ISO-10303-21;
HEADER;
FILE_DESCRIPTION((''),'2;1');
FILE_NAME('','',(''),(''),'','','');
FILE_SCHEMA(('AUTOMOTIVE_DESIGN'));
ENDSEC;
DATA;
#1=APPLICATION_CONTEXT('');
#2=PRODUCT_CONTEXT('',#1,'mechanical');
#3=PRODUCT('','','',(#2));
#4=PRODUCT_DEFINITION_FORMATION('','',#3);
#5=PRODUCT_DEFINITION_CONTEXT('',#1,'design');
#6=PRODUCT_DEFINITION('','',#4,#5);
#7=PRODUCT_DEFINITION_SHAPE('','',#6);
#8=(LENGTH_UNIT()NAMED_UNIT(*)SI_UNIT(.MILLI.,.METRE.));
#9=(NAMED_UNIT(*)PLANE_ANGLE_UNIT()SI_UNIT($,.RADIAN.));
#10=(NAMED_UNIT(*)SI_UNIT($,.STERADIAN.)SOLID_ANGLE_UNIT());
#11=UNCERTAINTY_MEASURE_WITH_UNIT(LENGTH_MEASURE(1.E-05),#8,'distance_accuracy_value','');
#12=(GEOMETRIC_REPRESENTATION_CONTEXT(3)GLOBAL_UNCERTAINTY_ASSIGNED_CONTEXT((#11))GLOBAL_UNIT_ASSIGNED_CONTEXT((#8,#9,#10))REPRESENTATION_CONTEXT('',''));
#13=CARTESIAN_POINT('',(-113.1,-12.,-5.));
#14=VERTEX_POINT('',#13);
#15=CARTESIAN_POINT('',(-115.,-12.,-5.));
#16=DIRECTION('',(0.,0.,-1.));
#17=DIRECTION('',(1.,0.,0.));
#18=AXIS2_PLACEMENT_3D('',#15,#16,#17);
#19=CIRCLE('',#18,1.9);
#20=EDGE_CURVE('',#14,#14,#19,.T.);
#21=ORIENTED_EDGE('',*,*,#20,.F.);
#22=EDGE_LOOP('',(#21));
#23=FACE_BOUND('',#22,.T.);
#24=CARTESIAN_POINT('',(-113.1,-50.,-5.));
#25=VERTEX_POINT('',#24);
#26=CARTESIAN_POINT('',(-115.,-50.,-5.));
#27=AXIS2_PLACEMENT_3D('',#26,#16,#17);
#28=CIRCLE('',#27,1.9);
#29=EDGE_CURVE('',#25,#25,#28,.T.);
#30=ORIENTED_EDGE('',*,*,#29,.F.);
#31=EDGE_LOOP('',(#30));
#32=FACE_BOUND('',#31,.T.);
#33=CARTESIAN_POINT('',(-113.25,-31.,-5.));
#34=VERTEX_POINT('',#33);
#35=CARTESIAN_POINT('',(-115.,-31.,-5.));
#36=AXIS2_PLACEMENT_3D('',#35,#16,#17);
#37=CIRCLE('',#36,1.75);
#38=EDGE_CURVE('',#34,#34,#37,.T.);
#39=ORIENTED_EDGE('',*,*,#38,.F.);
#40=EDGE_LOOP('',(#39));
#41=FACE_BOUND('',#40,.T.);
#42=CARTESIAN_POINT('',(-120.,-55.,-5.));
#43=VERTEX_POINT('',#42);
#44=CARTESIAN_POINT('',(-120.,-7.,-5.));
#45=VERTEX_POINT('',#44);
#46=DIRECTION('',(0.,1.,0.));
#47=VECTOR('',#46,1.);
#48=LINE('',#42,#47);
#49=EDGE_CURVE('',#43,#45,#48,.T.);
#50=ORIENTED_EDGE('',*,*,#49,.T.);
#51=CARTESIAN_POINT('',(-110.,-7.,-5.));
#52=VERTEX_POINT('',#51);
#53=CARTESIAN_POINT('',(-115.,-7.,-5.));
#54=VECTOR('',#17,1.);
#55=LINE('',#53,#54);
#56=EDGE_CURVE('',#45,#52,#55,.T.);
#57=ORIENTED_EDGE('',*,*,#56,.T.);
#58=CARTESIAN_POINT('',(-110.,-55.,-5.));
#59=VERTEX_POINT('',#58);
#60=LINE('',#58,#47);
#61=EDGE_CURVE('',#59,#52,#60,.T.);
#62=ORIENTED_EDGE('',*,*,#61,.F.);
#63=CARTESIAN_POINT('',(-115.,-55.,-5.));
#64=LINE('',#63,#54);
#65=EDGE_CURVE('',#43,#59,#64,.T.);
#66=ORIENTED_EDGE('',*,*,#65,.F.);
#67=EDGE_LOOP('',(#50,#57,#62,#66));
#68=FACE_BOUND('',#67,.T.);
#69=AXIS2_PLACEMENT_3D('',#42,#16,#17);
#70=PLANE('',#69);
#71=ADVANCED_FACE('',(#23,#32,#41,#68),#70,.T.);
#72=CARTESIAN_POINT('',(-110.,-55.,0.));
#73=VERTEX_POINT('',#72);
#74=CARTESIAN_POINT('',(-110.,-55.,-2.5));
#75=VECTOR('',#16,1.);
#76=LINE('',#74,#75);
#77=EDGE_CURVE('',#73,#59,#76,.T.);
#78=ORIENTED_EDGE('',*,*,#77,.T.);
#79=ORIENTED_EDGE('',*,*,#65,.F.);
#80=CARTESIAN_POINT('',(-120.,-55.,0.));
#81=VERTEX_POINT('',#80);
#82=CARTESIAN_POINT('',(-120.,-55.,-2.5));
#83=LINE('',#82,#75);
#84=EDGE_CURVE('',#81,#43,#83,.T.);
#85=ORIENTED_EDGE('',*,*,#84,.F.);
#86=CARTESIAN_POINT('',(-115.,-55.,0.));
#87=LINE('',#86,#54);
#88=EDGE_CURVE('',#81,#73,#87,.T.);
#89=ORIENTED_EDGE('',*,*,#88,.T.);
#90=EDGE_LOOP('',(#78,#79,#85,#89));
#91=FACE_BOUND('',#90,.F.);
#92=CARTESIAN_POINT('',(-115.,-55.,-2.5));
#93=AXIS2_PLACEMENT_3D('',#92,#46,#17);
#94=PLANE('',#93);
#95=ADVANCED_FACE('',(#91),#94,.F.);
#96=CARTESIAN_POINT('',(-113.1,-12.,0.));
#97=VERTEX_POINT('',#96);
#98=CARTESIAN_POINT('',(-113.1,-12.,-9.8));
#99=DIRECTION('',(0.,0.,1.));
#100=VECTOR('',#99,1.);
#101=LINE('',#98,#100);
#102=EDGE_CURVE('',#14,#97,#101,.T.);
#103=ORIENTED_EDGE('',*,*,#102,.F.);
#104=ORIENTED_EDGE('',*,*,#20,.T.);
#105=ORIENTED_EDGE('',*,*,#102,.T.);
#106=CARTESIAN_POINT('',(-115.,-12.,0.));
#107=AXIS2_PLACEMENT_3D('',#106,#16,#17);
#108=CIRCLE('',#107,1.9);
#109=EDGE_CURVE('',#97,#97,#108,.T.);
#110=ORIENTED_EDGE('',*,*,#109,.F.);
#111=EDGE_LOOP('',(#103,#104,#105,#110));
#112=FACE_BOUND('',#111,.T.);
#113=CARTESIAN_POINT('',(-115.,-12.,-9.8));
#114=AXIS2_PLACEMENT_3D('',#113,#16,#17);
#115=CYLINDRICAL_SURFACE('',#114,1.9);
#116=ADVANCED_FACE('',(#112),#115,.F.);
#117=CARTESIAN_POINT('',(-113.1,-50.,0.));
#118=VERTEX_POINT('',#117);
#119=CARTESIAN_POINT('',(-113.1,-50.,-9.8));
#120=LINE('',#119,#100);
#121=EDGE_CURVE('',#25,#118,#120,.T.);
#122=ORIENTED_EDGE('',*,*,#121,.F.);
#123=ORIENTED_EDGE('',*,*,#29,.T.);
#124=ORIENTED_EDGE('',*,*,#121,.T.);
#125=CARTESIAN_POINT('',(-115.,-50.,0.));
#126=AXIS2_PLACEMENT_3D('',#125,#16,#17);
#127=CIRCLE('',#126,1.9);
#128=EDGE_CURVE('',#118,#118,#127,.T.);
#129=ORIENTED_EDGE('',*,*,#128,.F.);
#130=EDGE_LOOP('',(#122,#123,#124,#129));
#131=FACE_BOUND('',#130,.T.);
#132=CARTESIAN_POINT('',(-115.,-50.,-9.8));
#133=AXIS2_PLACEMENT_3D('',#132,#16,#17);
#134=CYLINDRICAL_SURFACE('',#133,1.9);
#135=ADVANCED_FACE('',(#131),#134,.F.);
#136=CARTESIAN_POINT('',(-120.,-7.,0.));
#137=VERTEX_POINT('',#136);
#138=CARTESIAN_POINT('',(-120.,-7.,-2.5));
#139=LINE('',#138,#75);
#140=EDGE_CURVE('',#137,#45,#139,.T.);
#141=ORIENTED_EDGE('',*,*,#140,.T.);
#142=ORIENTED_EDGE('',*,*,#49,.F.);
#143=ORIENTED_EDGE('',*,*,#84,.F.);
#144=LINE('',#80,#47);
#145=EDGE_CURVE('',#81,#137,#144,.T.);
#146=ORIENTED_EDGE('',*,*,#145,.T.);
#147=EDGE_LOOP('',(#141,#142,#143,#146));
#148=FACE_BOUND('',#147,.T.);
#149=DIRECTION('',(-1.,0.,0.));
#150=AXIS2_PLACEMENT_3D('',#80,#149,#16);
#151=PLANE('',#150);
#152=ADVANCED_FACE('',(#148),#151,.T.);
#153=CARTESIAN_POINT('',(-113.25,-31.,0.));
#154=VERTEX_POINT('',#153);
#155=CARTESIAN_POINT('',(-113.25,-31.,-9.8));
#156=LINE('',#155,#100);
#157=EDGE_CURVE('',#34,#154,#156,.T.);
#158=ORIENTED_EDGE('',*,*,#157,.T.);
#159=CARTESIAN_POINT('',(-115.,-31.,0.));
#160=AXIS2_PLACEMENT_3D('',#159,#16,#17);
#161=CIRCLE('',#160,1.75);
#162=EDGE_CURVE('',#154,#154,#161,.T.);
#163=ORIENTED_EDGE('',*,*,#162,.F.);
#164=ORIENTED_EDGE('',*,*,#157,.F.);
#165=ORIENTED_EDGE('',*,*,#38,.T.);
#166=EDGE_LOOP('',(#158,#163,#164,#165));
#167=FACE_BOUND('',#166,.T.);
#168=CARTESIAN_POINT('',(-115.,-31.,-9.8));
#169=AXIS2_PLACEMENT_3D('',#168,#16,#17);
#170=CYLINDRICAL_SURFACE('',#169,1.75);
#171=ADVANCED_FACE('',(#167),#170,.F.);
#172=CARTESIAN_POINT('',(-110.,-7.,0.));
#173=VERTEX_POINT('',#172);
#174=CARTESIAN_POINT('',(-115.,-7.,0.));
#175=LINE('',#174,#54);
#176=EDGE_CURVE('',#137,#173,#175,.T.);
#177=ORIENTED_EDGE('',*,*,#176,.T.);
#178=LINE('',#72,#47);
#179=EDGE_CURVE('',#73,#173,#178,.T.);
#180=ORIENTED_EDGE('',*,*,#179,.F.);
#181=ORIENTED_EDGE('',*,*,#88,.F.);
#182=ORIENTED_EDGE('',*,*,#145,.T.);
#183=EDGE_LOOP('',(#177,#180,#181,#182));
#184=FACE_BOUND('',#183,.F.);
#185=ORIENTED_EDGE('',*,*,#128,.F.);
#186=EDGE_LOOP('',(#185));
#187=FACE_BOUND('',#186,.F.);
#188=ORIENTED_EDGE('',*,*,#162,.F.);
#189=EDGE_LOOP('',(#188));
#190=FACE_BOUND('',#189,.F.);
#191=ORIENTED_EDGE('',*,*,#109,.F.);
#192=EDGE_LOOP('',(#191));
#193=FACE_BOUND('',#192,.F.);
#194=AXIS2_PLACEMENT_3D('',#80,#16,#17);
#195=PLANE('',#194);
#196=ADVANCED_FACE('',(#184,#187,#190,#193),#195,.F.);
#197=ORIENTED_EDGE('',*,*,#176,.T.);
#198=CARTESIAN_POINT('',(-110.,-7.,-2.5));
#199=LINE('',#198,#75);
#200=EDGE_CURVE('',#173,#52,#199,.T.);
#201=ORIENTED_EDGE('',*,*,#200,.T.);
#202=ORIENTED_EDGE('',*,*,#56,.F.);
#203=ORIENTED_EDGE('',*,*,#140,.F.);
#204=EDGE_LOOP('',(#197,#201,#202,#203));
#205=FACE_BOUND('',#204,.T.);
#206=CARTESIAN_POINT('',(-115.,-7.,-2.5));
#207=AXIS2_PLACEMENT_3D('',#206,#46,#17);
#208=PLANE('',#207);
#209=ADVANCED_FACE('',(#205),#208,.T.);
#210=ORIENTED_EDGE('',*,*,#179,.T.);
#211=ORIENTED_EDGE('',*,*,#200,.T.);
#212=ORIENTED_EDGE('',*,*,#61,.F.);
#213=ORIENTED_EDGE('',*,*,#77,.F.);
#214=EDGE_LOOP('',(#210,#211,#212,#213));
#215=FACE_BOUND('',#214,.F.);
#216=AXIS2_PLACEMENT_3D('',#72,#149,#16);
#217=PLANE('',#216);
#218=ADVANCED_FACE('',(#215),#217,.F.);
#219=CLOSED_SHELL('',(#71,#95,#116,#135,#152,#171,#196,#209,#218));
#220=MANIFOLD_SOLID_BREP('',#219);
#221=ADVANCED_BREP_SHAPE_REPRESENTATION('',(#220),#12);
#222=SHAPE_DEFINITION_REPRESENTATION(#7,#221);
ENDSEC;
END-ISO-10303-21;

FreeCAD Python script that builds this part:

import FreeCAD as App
import Part
import Sketcher
from FreeCAD import Vector

doc = App.newDocument("Part")
body = doc.addObject("PartDesign::Body", "Body")

# Sketch on XZ plane
sketch1 = body.newObject("Sketcher::SketchObject", "Sketch")
sketch1.AttachmentSupport = (doc.getObject("XZ_Plane"), [""])
sketch1.MapMode = "FlatFace"
sketch1.addGeometry(Part.Circle(Vector(-115, -50, 0), Vector(0, 0, 1), 1.9), False)
sketch1.addConstraint(Sketcher.Constraint("Diameter", 0, 3.8))
sketch1.addConstraint(Sketcher.Constraint("DistanceX", 0, 3, -1, 1, 115.0))
sketch1.addConstraint(Sketcher.Constraint("DistanceY", 0, 3, -1, 1, 50.0))
pad1 = body.newObject("PartDesign::Pad", "Pad")
pad1.Profile = sketch1
pad1.Length = 10
body2 = doc.addObject("PartDesign::Body", "Body001")

# Sketch on XZ plane
sketch2 = body2.newObject("Sketcher::SketchObject", "Sketch001")
sketch2.AttachmentSupport = (doc.getObject("XZ_Plane001"), [""])
sketch2.MapMode = "FlatFace"
sketch2.addGeometry(Part.Circle(Vector(-115, -12, 0), Vector(0, 0, 1), 1.9), False)
sketch2.addConstraint(Sketcher.Constraint("Diameter", 0, 3.8))
sketch2.addConstraint(Sketcher.Constraint("DistanceX", 0, 3, -1, 1, 115.0))
sketch2.addConstraint(Sketcher.Constraint("DistanceY", 0, 3, -1, 1, 12.0))
pad2 = body2.newObject("PartDesign::Pad", "Pad001")
pad2.Profile = sketch2
pad2.Length = 10
body3 = doc.addObject("PartDesign::Body", "Body002")
body3.AllowCompound = True

# Sketch on XZ plane
sketch3 = body3.newObject("Sketcher::SketchObject", "Sketch002")
sketch3.AttachmentSupport = (doc.getObject("XZ_Plane002"), [""])
sketch3.MapMode = "FlatFace"
sketch3.addGeometry(Part.Circle(Vector(-115, -31, 0), Vector(0, 0, 1), 1.8), False)
sketch3.addConstraint(Sketcher.Constraint("Diameter", 0, 3.5))
sketch3.addConstraint(Sketcher.Constraint("DistanceX", 0, 3, -1, 1, 115.0))
sketch3.addConstraint(Sketcher.Constraint("DistanceY", 0, 3, -1, 1, 31.0))
pad3 = body3.newObject("PartDesign::Pad", "Pad002")
pad3.Profile = sketch3
pad3.Length = 10
doc.recompute()

boolean = body3.newObject("PartDesign::Boolean", "Boolean")
boolean.Type = "Fuse"
boolean.addObjects([body])
doc.recompute()

boolean2 = body3.newObject("PartDesign::Boolean", "Boolean001")
boolean2.Type = "Fuse"
boolean2.addObjects([body2])
body4 = doc.addObject("PartDesign::Body", "Body003")
body4.AllowCompound = True
doc.recompute()

body3.Placement = App.Placement(Vector(0, 9.8, 0), App.Rotation(Vector(0, 0, 1), 0))
boolean3 = body4.newObject("PartDesign::Boolean", "Boolean002")
boolean3.Type = "Fuse"
boolean3.addObjects([body3])
body5 = doc.addObject("PartDesign::Body", "Body004")

# Sketch on XY plane
sketch4 = body5.newObject("Sketcher::SketchObject", "Sketch003")
sketch4.AttachmentSupport = (doc.getObject("XY_Plane004"), [""])
sketch4.MapMode = "FlatFace"
sketch4.AttachmentOffset = App.Placement(Vector(0, 0, -55), App.Rotation())
sketch4.addGeometry(Part.LineSegment(Vector(-120, 5, 0), Vector(-120, 0, 0)), False)
sketch4.addGeometry(Part.LineSegment(Vector(-120, 0, 0), Vector(-110, 0, 0)), False)
sketch4.addGeometry(Part.LineSegment(Vector(-110, 0, 0), Vector(-110, 5, 0)), False)
sketch4.addGeometry(Part.LineSegment(Vector(-110, 5, 0), Vector(-120, 5, 0)), False)
sketch4.addConstraint(Sketcher.Constraint("Coincident", 0, 2, 1, 1))
sketch4.addConstraint(Sketcher.Constraint("Coincident", 1, 2, 2, 1))
sketch4.addConstraint(Sketcher.Constraint("Coincident", 2, 2, 3, 1))
sketch4.addConstraint(Sketcher.Constraint("Coincident", 3, 2, 0, 1))
sketch4.addConstraint(Sketcher.Constraint("Vertical", 0))
sketch4.addConstraint(Sketcher.Constraint("Horizontal", 1))
sketch4.addConstraint(Sketcher.Constraint("Vertical", 2))
sketch4.addConstraint(Sketcher.Constraint("Horizontal", 3))
sketch4.addConstraint(Sketcher.Constraint("PointOnObject", 0, 2, -1))
sketch4.addConstraint(Sketcher.Constraint("DistanceX", 1, 1, 1, 2, 10.0))
sketch4.addConstraint(Sketcher.Constraint("DistanceY", 0, 2, 0, 1, 5.0))
sketch4.addConstraint(Sketcher.Constraint("DistanceX", 0, 2, -1, 1, 120.0))
pad4 = body5.newObject("PartDesign::Pad", "Pad003")
pad4.Profile = sketch4
pad4.Length = 48
doc.recompute()

boolean4 = body5.newObject("PartDesign::Boolean", "Boolean003")
boolean4.Type = "Cut"
boolean4.addObjects([body4])
body6 = doc.addObject("PartDesign::Body", "Body005")
doc.recompute()

body5.Placement = App.Placement(Vector(0, 0, 0), App.Rotation(Vector(-1, 0, 0), 90))
boolean5 = body6.newObject("PartDesign::Boolean", "Boolean004")
boolean5.Type = "Fuse"
boolean5.addObjects([body5])

doc.recompute()
